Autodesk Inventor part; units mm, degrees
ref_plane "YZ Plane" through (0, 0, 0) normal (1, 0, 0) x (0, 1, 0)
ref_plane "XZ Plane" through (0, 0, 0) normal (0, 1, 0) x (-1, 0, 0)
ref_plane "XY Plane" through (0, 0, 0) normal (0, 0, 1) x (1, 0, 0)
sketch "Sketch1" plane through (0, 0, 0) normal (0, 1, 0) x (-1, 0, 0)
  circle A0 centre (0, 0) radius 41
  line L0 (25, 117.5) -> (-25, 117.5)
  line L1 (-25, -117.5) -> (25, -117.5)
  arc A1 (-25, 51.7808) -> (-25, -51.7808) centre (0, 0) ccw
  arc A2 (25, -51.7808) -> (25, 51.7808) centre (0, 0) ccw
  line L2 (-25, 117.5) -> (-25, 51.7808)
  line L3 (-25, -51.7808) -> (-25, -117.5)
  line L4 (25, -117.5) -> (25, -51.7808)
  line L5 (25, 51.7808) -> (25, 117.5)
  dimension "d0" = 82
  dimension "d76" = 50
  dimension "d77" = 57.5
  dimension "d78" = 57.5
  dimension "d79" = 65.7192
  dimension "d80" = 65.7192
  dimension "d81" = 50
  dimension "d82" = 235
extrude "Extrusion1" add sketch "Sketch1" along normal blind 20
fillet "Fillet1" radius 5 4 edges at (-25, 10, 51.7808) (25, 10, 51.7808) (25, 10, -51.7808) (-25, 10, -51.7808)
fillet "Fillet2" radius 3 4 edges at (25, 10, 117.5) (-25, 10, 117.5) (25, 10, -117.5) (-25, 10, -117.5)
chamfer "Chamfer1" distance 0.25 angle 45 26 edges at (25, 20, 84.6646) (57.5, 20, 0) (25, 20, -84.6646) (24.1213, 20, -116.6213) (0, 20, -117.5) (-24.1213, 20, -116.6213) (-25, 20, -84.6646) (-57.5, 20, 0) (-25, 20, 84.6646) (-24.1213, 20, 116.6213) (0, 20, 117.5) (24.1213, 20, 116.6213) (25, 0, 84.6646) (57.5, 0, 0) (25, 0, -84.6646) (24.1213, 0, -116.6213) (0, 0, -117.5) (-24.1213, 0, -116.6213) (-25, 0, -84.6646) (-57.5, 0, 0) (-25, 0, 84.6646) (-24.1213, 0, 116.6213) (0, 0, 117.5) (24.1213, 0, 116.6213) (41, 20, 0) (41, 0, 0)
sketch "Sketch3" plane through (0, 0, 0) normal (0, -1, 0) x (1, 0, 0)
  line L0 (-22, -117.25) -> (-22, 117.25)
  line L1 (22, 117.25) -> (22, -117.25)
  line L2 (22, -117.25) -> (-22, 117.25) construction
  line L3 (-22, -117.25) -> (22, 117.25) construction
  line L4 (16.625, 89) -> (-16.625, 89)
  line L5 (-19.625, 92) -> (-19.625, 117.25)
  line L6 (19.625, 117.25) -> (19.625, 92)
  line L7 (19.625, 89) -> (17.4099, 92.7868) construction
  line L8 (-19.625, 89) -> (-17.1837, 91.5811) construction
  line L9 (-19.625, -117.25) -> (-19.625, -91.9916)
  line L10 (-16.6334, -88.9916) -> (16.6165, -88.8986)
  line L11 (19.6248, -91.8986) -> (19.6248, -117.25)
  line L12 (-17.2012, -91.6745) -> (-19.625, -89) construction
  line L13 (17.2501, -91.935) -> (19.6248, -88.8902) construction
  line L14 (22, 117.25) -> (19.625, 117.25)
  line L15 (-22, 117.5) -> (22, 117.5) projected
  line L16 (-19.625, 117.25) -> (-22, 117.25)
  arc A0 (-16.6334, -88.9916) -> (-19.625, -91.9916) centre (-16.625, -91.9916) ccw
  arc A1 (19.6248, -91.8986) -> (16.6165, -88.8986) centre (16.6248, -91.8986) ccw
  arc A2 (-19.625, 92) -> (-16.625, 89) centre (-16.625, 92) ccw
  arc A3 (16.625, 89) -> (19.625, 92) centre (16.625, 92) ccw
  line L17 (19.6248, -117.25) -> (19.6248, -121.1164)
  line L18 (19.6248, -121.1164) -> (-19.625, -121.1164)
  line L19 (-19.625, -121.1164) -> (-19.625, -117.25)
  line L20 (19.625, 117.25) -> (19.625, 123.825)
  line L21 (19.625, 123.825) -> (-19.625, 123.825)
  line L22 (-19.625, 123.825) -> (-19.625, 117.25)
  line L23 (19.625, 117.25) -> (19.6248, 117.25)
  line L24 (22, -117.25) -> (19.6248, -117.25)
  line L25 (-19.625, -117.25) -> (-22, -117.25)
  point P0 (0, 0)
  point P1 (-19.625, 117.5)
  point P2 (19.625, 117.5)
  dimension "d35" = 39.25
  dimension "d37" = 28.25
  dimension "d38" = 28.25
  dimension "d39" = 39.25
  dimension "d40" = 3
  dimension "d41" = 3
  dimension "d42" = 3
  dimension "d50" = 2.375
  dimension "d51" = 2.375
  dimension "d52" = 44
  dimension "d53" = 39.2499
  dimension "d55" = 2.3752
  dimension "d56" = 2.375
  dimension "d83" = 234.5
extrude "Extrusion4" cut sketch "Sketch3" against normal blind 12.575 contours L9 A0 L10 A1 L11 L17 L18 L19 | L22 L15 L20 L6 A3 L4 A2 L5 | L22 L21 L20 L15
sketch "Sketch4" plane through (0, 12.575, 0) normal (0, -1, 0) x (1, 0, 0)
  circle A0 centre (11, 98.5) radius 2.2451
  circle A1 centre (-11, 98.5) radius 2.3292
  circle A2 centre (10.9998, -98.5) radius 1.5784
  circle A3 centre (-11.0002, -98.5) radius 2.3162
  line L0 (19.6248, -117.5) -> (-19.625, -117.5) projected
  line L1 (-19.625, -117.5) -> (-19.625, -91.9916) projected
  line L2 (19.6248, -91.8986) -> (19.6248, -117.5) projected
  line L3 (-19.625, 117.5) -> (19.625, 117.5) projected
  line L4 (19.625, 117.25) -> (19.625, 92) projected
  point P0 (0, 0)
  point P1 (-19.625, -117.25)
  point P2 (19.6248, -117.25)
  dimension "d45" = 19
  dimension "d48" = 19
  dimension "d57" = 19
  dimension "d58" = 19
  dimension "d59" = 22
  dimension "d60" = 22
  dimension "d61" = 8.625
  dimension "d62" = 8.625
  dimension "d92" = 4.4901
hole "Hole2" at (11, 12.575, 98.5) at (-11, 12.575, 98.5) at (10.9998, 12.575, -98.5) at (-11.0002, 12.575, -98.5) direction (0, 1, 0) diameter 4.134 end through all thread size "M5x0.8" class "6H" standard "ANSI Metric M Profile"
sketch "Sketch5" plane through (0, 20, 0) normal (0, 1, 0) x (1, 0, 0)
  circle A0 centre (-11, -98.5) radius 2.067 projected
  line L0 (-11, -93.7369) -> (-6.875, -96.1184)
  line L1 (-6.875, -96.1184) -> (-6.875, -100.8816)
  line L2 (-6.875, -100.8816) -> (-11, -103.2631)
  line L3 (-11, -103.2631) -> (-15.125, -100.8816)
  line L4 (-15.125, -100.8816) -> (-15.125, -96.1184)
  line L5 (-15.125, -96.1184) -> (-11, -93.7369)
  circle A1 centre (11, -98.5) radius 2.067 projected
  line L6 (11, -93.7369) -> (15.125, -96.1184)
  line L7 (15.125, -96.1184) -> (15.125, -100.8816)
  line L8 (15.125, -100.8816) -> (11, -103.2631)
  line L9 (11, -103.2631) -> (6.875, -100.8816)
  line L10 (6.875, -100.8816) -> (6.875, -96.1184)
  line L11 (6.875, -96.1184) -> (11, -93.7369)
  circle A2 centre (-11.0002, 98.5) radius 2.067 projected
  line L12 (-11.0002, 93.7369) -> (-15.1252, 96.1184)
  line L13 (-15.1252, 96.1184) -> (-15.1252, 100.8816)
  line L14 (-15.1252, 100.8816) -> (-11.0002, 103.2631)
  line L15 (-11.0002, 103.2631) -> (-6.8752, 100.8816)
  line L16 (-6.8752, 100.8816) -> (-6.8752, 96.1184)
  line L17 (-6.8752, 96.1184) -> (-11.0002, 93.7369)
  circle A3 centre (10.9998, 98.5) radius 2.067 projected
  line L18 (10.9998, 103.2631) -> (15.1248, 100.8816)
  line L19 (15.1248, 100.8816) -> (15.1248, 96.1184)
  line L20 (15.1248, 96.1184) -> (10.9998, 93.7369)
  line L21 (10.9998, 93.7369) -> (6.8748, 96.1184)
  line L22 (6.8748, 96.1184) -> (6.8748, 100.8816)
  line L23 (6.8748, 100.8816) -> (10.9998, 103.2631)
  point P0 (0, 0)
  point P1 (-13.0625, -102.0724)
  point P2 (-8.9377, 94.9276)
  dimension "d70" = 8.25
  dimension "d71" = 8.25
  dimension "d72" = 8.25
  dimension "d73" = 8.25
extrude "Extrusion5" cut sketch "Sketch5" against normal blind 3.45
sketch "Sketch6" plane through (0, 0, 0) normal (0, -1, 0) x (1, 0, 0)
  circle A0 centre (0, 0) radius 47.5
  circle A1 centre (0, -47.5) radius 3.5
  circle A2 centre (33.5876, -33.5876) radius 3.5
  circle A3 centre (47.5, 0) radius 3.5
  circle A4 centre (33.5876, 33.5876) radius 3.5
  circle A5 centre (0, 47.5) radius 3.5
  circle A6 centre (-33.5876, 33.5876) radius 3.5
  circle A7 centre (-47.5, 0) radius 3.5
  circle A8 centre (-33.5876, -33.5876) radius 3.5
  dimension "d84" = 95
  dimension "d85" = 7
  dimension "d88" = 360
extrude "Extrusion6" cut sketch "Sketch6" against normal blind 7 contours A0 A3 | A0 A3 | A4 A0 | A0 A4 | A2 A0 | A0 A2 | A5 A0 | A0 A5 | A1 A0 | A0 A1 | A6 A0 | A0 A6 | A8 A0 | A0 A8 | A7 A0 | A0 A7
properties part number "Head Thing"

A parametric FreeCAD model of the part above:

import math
import FreeCAD as App
import Part
import Sketcher

V = App.Vector
Q = App.Units.Quantity


def edges_at(feature, points):
    """Names of the edges that pass closest to the given points."""
    edges = feature.Shape.Edges
    near = lambda p: min(range(len(edges)), key=lambda i: edges[i].distToShape(Part.Vertex(*p))[0])
    return sorted({f"Edge{near(p) + 1}" for p in points})


def add_polygon(sketch, points):
    """Adds a closed chain of lines whose ends are joined by coincident constraints."""
    first, n = sketch.GeometryCount, len(points)
    for a, b in zip(points, points[1:] + points[:1]):
        sketch.addGeometry(Part.LineSegment(App.Vector(*a, 0), App.Vector(*b, 0)), False)
    for i in range(n):
        sketch.addConstraint(Sketcher.Constraint("Coincident", first + i, 2, first + (i + 1) % n, 1))

doc = App.newDocument("Part")
body = doc.addObject("PartDesign::Body", "Body")

# Sketch on XZ plane
sketch1 = body.newObject("Sketcher::SketchObject", "Sketch")
sketch1.AttachmentSupport = (doc.getObject("XZ_Plane"), [""])
sketch1.MapMode = "FlatFace"
sketch1.addGeometry([
    Part.LineSegment(V(-25, 52, 0), V(-25, 118, 0)),  # 0
    Part.LineSegment(V(-25, 118, 0), V(25, 118, 0)),  # 1
    Part.LineSegment(V(25, 118, 0), V(25, 52, 0)),  # 2
    Part.ArcOfCircle(Part.Circle(V(0, 0, 0), V(0, 0, 1), 58), math.radians(-64), math.radians(64)),  # 3
    Part.LineSegment(V(25, -52, 0), V(25, -118, 0)),  # 4
    Part.LineSegment(V(25, -118, 0), V(-25, -118, 0)),  # 5
    Part.LineSegment(V(-25, -118, 0), V(-25, -52, 0)),  # 6
    Part.ArcOfCircle(Part.Circle(V(0, 0, 0), V(0, 0, 1), 58), math.radians(116), math.radians(244)),  # 7
    Part.Circle(V(0, 0, 0), V(0, 0, 1), 41),  # 8
], False)
sketch1.addConstraint([
    Sketcher.Constraint("Coincident", 0, 2, 1, 1),
    Sketcher.Constraint("Coincident", 1, 2, 2, 1),
    Sketcher.Constraint("Coincident", 2, 2, 3, 2),
    Sketcher.Constraint("Coincident", 3, 1, 4, 1),
    Sketcher.Constraint("Coincident", 4, 2, 5, 1),
    Sketcher.Constraint("Coincident", 5, 2, 6, 1),
    Sketcher.Constraint("Coincident", 6, 2, 7, 2),
    Sketcher.Constraint("Coincident", 7, 1, 0, 1),
    Sketcher.Constraint("Vertical", 0),
    Sketcher.Constraint("Horizontal", 1),
    Sketcher.Constraint("Vertical", 2),
    Sketcher.Constraint("Vertical", 4),
    Sketcher.Constraint("Horizontal", 5),
    Sketcher.Constraint("Vertical", 6),
    Sketcher.Constraint("Coincident", 3, 3, -1, 1),
    Sketcher.Constraint("Coincident", 7, 3, -1, 1),
    Sketcher.Constraint("Coincident", 8, 3, -1, 1),
    Sketcher.Constraint("Equal", 3, 7),
    Sketcher.Constraint("Symmetric", 0, 2, 4, 2, -1, 1),
    Sketcher.Constraint("Horizontal", 3, 1, 6, 2),
    Sketcher.Constraint("Horizontal", 2, 2, 7, 1),
    Sketcher.Constraint("Diameter", 8, 82.0),
    Sketcher.Constraint("Radius", 3, 57.5),
    Sketcher.Constraint("DistanceX", 1, 1, 1, 2, 50.0),
    Sketcher.Constraint("DistanceY", 0, 1, 0, 2, 65.7192),
])
pad1 = body.newObject("PartDesign::Pad", "Pad")
pad1.Profile = sketch1
pad1.Length = 20
pad1.Reversed = True
doc.recompute()

fillet = body.newObject("PartDesign::Fillet", "Fillet")
fillet.Base = (pad1, edges_at(pad1, [
    (-25, 10, 51.781),
    (25, 10, 51.781),
    (25, 10, -51.781),
    (-25, 10, -51.781),
]))
fillet.Radius = 5
doc.recompute()

fillet2 = body.newObject("PartDesign::Fillet", "Fillet001")
fillet2.Base = (fillet, edges_at(fillet, [
    (25, 10, 117.5),
    (-25, 10, 117.5),
    (25, 10, -117.5),
    (-25, 10, -117.5),
]))
fillet2.Radius = 3
doc.recompute()

chamfer = body.newObject("PartDesign::Chamfer", "Chamfer")
chamfer.Base = (fillet2, edges_at(fillet2, [
    (25, 20, 84.665),
    (57.5, 20, 0),
    (25, 20, -84.665),
    (24.121, 20, -116.621),
    (0, 20, -117.5),
    (-24.121, 20, -116.621),
    (-25, 20, -84.665),
    (-57.5, 20, 0),
    (-25, 20, 84.665),
    (-24.121, 20, 116.621),
    (0, 20, 117.5),
    (24.121, 20, 116.621),
    (25, 0, 84.665),
    (57.5, 0, 0),
    (25, 0, -84.665),
    (24.121, 0, -116.621),
    (0, 0, -117.5),
    (-24.121, 0, -116.621),
    (-25, 0, -84.665),
    (-57.5, 0, 0),
    (-25, 0, 84.665),
    (-24.121, 0, 116.621),
    (0, 0, 117.5),
    (24.121, 0, 116.621),
    (41, 20, 0),
    (41, 0, 0),
]))
chamfer.Size = 0.25

# Sketch on XZ plane
sketch2 = body.newObject("Sketcher::SketchObject", "Sketch001")
sketch2.AttachmentSupport = (doc.getObject("XZ_Plane"), [""])
sketch2.MapMode = "FlatFace"
sketch2.addGeometry([
    Part.LineSegment(V(-19.6, -92, 0), V(-19.6, -121.1, 0)),  # 0
    Part.LineSegment(V(-19.6, -121.1, 0), V(19.6, -121.1, 0)),  # 1
    Part.LineSegment(V(19.6, -121.1, 0), V(19.6, -91.9, 0)),  # 2
    Part.ArcOfCircle(Part.Circle(V(16.6, -91.9, 0), V(0, 0, 1), 3), math.radians(0), math.radians(90)),  # 3
    Part.LineSegment(V(16.6, -88.9, 0), V(-16.6, -89, 0)),  # 4
    Part.ArcOfCircle(Part.Circle(V(-16.6, -92, 0), V(0, 0, 1), 3), math.radians(90), math.radians(180)),  # 5
    Part.ArcOfCircle(Part.Circle(V(-16.6, 92, 0), V(0, 0, 1), 3), math.radians(180), math.radians(270)),  # 6
    Part.LineSegment(V(-16.6, 89, 0), V(16.6, 89, 0)),  # 7
    Part.ArcOfCircle(Part.Circle(V(16.6, 92, 0), V(0, 0, 1), 3), math.radians(-90), math.radians(0)),  # 8
    Part.LineSegment(V(19.6, 92, 0), V(19.6, 123.8, 0)),  # 9
    Part.LineSegment(V(19.6, 123.8, 0), V(-19.6, 123.8, 0)),  # 10
    Part.LineSegment(V(-19.6, 123.8, 0), V(-19.6, 92, 0)),  # 11
], False)
sketch2.addConstraint([
    Sketcher.Constraint("Coincident", 0, 2, 1, 1),
    Sketcher.Constraint("Coincident", 1, 2, 2, 1),
    Sketcher.Constraint("Tangent", 2, 2, 3, 1),
    Sketcher.Constraint("Tangent", 3, 2, 4, 1),
    Sketcher.Constraint("Tangent", 4, 2, 5, 1),
    Sketcher.Constraint("Tangent", 5, 2, 0, 1),
    Sketcher.Constraint("Tangent", 6, 2, 7, 1),
    Sketcher.Constraint("Tangent", 7, 2, 8, 1),
    Sketcher.Constraint("Tangent", 8, 2, 9, 1),
    Sketcher.Constraint("Coincident", 9, 2, 10, 1),
    Sketcher.Constraint("Coincident", 10, 2, 11, 1),
    Sketcher.Constraint("Tangent", 11, 2, 6, 1),
    Sketcher.Constraint("Vertical", 0),
    Sketcher.Constraint("Horizontal", 1),
    Sketcher.Constraint("Vertical", 2),
    Sketcher.Constraint("Horizontal", 7),
    Sketcher.Constraint("Vertical", 9),
    Sketcher.Constraint("Horizontal", 10),
    Sketcher.Constraint("Vertical", 11),
    Sketcher.Constraint("Equal", 3, 5),
    Sketcher.Constraint("Equal", 5, 6),
    Sketcher.Constraint("Equal", 6, 8),
    Sketcher.Constraint("Vertical", 5, 3, 6, 3),
    Sketcher.Constraint("Vertical", 3, 3, 8, 3),
    Sketcher.Constraint("Radius", 3, 3.0),
    Sketcher.Constraint("DistanceX", 10, 2, 10, 1, 39.25),
    Sketcher.Constraint("DistanceY", -1, 1, 6, 3, 92.0),
    Sketcher.Constraint("Angle", 4, Q("-179.8397 deg")),
    Sketcher.Constraint("DistanceY", 9, 1, 9, 2, 31.825),
    Sketcher.Constraint("DistanceY", 0, 2, 0, 1, 29.1248),
    Sketcher.Constraint("DistanceX", 5, 3, -1, 1, 16.625),
    Sketcher.Constraint("DistanceY", 3, 3, -1, 1, 91.8986),
])
pocket1 = body.newObject("PartDesign::Pocket", "Pocket")
pocket1.Profile = sketch2
pocket1.Length = 12.575

# Sketch on XZ plane
sketch3 = body.newObject("Sketcher::SketchObject", "Sketch002")
sketch3.AttachmentSupport = (doc.getObject("XZ_Plane"), [""])
sketch3.MapMode = "FlatFace"
sketch3.AttachmentOffset = App.Placement(V(0, 0, -12.575), App.Rotation())
sketch3.addGeometry([
    Part.Circle(V(11, 98.5, 0), V(0, 0, 1), 2.1),
    Part.Circle(V(-11, 98.5, 0), V(0, 0, 1), 2.1),
    Part.Circle(V(11, -98.5, 0), V(0, 0, 1), 2.1),
    Part.Circle(V(-11, -98.5, 0), V(0, 0, 1), 2.1),
], False)
sketch3.addConstraint([
    Sketcher.Constraint("Equal", 0, 1),
    Sketcher.Constraint("Equal", 1, 2),
    Sketcher.Constraint("Equal", 2, 3),
    Sketcher.Constraint("Symmetric", 1, 3, 2, 3, -1, 1),
    Sketcher.Constraint("Symmetric", 0, 3, 3, 3, -1, 1),
    Sketcher.Constraint("Symmetric", 0, 3, 1, 3, -2),
    Sketcher.Constraint("Diameter", 0, 4.134),
    Sketcher.Constraint("DistanceX", -1, 1, 0, 3, 11.0),
    Sketcher.Constraint("DistanceY", 2, 3, 0, 3, 197.0),
])
doc.recompute()
hole = body.newObject("PartDesign::Hole", "Hole")
hole.Profile = sketch3
hole.ThreadType = "None"
hole.Diameter = 4.134
hole.DepthType = "ThroughAll"

# Sketch on XZ plane
sketch4 = body.newObject("Sketcher::SketchObject", "Sketch003")
sketch4.AttachmentSupport = (doc.getObject("XZ_Plane"), [""])
sketch4.MapMode = "FlatFace"
sketch4.AttachmentOffset = App.Placement(V(0, 0, -20), App.Rotation())
add_polygon(sketch4, [(-6.9, 96.1), (-11, 93.7), (-15.1, 96.1), (-15.1, 100.9), (-11, 103.3), (-6.9, 100.9)])  # lines 0-5
sketch4.addGeometry(Part.Circle(V(-11, 98.5, 0), V(0, 0, 1), 2.1), False)  # 6
add_polygon(sketch4, [(15.1, 96.1), (11, 93.7), (6.9, 96.1), (6.9, 100.9), (11, 103.3), (15.1, 100.9)])  # lines 7-12
sketch4.addGeometry(Part.Circle(V(11, 98.5, 0), V(0, 0, 1), 2.1), False)  # 13
add_polygon(sketch4, [(-15.1, -96.1), (-11, -93.7), (-6.9, -96.1), (-6.9, -100.9), (-11, -103.3), (-15.1, -100.9)])  # lines 14-19
sketch4.addGeometry(Part.Circle(V(-11, -98.5, 0), V(0, 0, 1), 2.1), False)  # 20
add_polygon(sketch4, [(15.1, -100.9), (11, -103.3), (6.9, -100.9), (6.9, -96.1), (11, -93.7), (15.1, -96.1)])  # lines 21-26
sketch4.addGeometry(Part.Circle(V(11, -98.5, 0), V(0, 0, 1), 2.1), False)  # 27
sketch4.addConstraint([
    Sketcher.Constraint("Vertical", 2),
    Sketcher.Constraint("Vertical", 5),
    Sketcher.Constraint("Vertical", 9),
    Sketcher.Constraint("Vertical", 12),
    Sketcher.Constraint("Vertical", 16),
    Sketcher.Constraint("Vertical", 19),
    Sketcher.Constraint("Vertical", 23),
    Sketcher.Constraint("Vertical", 26),
    Sketcher.Constraint("Equal", 6, 13),
    Sketcher.Constraint("Equal", 13, 20),
    Sketcher.Constraint("Equal", 20, 27),
    Sketcher.Constraint("Symmetric", 13, 3, 20, 3, -1, 1),
    Sketcher.Constraint("Symmetric", 6, 3, 27, 3, -1, 1),
    Sketcher.Constraint("Symmetric", 7, 2, 14, 2, -1, 1),
    Sketcher.Constraint("Symmetric", 8, 2, 15, 2, -1, 1),
    Sketcher.Constraint("Symmetric", 10, 2, 17, 2, -1, 1),
    Sketcher.Constraint("Symmetric", 11, 2, 18, 2, -1, 1),
    Sketcher.Constraint("Symmetric", 3, 2, 21, 2, -1, 1),
    Sketcher.Constraint("Symmetric", 4, 2, 22, 2, -1, 1),
    Sketcher.Constraint("Symmetric", 0, 2, 24, 2, -1, 1),
    Sketcher.Constraint("Symmetric", 1, 2, 25, 2, -1, 1),
    Sketcher.Constraint("Symmetric", 6, 3, 13, 3, -2),
    Sketcher.Constraint("Symmetric", 0, 2, 7, 2, -2),
    Sketcher.Constraint("Symmetric", 5, 2, 8, 2, -2),
    Sketcher.Constraint("Symmetric", 3, 2, 10, 2, -2),
    Sketcher.Constraint("Symmetric", 2, 2, 11, 2, -2),
    Sketcher.Constraint("Parallel", 0, 3),
    Sketcher.Constraint("Parallel", 1, 4),
    Sketcher.Constraint("Parallel", 3, 7),
    Sketcher.Constraint("Parallel", 4, 8),
    Sketcher.Constraint("Parallel", 7, 10),
    Sketcher.Constraint("Parallel", 10, 14),
    Sketcher.Constraint("Parallel", 14, 17),
    Sketcher.Constraint("Parallel", 17, 21),
    Sketcher.Constraint("Parallel", 21, 24),
    Sketcher.Constraint("Horizontal", 2, 2, 4, 2),
    Sketcher.Constraint("Horizontal", 1, 2, 5, 2),
    Sketcher.Constraint("Vertical", 20, 3, 0, 2),
    Sketcher.Constraint("Angle", 0, Q("-150.0007 deg")),
    Sketcher.Constraint("DistanceX", 2, 2, 4, 2, 8.25),
    Sketcher.Constraint("Diameter", 6, 4.134),
    Sketcher.Constraint("DistanceX", 6, 3, -1, 1, 11.0),
    Sketcher.Constraint("DistanceY", 20, 3, 6, 3, 197.0),
    Sketcher.Constraint("DistanceY", 2, 1, 2, 2, 4.7632),
    Sketcher.Constraint("DistanceY", -1, 1, 0, 2, 93.737),
])
pocket2 = body.newObject("PartDesign::Pocket", "Pocket001")
pocket2.Profile = sketch4
pocket2.Length = 3.45
pocket2.Reversed = True

# Sketch on XZ plane
sketch5 = body.newObject("Sketcher::SketchObject", "Sketch004")
sketch5.AttachmentSupport = (doc.getObject("XZ_Plane"), [""])
sketch5.MapMode = "FlatFace"
sketch5.addGeometry([
    Part.Circle(V(47.5, 0, 0), V(0, 0, 1), 3.5),  # 0
    Part.Circle(V(33.6, 33.6, 0), V(0, 0, 1), 3.5),  # 1
    Part.Circle(V(33.6, -33.6, 0), V(0, 0, 1), 3.5),  # 2
    Part.Circle(V(0, 47.5, 0), V(0, 0, 1), 3.5),  # 3
    Part.Circle(V(0, -47.5, 0), V(0, 0, 1), 3.5),  # 4
    Part.Circle(V(-33.6, 33.6, 0), V(0, 0, 1), 3.5),  # 5
    Part.Circle(V(-33.6, -33.6, 0), V(0, 0, 1), 3.5),  # 6
    Part.Circle(V(-47.5, 0, 0), V(0, 0, 1), 3.5),  # 7
], False)
sketch5.addConstraint([
    Sketcher.Constraint("Equal", 0, 1),
    Sketcher.Constraint("Equal", 1, 2),
    Sketcher.Constraint("Equal", 2, 3),
    Sketcher.Constraint("Equal", 3, 4),
    Sketcher.Constraint("Equal", 4, 5),
    Sketcher.Constraint("Equal", 5, 6),
    Sketcher.Constraint("Equal", 6, 7),
    Sketcher.Constraint("Symmetric", 3, 3, 4, 3, -1, 1),
    Sketcher.Constraint("Symmetric", 2, 3, 5, 3, -1, 1),
    Sketcher.Constraint("Symmetric", 1, 3, 6, 3, -1, 1),
    Sketcher.Constraint("Symmetric", 0, 3, 7, 3, -1, 1),
    Sketcher.Constraint("Symmetric", 1, 3, 5, 3, -2),
    Sketcher.Constraint("PointOnObject", 0, 3, -1),
    Sketcher.Constraint("PointOnObject", 3, 3, -2),
    Sketcher.Constraint("Diameter", 0, 7.0),
    Sketcher.Constraint("DistanceY", 4, 3, 3, 3, 95.0),
    Sketcher.Constraint("DistanceX", -1, 1, 0, 3, 47.5),
    Sketcher.Constraint("DistanceX", -1, 1, 1, 3, 33.5876),
    Sketcher.Constraint("DistanceY", -1, 1, 1, 3, 33.5876),
])
pocket3 = body.newObject("PartDesign::Pocket", "Pocket002")
pocket3.Profile = sketch5
pocket3.Length = 7

doc.recompute()
